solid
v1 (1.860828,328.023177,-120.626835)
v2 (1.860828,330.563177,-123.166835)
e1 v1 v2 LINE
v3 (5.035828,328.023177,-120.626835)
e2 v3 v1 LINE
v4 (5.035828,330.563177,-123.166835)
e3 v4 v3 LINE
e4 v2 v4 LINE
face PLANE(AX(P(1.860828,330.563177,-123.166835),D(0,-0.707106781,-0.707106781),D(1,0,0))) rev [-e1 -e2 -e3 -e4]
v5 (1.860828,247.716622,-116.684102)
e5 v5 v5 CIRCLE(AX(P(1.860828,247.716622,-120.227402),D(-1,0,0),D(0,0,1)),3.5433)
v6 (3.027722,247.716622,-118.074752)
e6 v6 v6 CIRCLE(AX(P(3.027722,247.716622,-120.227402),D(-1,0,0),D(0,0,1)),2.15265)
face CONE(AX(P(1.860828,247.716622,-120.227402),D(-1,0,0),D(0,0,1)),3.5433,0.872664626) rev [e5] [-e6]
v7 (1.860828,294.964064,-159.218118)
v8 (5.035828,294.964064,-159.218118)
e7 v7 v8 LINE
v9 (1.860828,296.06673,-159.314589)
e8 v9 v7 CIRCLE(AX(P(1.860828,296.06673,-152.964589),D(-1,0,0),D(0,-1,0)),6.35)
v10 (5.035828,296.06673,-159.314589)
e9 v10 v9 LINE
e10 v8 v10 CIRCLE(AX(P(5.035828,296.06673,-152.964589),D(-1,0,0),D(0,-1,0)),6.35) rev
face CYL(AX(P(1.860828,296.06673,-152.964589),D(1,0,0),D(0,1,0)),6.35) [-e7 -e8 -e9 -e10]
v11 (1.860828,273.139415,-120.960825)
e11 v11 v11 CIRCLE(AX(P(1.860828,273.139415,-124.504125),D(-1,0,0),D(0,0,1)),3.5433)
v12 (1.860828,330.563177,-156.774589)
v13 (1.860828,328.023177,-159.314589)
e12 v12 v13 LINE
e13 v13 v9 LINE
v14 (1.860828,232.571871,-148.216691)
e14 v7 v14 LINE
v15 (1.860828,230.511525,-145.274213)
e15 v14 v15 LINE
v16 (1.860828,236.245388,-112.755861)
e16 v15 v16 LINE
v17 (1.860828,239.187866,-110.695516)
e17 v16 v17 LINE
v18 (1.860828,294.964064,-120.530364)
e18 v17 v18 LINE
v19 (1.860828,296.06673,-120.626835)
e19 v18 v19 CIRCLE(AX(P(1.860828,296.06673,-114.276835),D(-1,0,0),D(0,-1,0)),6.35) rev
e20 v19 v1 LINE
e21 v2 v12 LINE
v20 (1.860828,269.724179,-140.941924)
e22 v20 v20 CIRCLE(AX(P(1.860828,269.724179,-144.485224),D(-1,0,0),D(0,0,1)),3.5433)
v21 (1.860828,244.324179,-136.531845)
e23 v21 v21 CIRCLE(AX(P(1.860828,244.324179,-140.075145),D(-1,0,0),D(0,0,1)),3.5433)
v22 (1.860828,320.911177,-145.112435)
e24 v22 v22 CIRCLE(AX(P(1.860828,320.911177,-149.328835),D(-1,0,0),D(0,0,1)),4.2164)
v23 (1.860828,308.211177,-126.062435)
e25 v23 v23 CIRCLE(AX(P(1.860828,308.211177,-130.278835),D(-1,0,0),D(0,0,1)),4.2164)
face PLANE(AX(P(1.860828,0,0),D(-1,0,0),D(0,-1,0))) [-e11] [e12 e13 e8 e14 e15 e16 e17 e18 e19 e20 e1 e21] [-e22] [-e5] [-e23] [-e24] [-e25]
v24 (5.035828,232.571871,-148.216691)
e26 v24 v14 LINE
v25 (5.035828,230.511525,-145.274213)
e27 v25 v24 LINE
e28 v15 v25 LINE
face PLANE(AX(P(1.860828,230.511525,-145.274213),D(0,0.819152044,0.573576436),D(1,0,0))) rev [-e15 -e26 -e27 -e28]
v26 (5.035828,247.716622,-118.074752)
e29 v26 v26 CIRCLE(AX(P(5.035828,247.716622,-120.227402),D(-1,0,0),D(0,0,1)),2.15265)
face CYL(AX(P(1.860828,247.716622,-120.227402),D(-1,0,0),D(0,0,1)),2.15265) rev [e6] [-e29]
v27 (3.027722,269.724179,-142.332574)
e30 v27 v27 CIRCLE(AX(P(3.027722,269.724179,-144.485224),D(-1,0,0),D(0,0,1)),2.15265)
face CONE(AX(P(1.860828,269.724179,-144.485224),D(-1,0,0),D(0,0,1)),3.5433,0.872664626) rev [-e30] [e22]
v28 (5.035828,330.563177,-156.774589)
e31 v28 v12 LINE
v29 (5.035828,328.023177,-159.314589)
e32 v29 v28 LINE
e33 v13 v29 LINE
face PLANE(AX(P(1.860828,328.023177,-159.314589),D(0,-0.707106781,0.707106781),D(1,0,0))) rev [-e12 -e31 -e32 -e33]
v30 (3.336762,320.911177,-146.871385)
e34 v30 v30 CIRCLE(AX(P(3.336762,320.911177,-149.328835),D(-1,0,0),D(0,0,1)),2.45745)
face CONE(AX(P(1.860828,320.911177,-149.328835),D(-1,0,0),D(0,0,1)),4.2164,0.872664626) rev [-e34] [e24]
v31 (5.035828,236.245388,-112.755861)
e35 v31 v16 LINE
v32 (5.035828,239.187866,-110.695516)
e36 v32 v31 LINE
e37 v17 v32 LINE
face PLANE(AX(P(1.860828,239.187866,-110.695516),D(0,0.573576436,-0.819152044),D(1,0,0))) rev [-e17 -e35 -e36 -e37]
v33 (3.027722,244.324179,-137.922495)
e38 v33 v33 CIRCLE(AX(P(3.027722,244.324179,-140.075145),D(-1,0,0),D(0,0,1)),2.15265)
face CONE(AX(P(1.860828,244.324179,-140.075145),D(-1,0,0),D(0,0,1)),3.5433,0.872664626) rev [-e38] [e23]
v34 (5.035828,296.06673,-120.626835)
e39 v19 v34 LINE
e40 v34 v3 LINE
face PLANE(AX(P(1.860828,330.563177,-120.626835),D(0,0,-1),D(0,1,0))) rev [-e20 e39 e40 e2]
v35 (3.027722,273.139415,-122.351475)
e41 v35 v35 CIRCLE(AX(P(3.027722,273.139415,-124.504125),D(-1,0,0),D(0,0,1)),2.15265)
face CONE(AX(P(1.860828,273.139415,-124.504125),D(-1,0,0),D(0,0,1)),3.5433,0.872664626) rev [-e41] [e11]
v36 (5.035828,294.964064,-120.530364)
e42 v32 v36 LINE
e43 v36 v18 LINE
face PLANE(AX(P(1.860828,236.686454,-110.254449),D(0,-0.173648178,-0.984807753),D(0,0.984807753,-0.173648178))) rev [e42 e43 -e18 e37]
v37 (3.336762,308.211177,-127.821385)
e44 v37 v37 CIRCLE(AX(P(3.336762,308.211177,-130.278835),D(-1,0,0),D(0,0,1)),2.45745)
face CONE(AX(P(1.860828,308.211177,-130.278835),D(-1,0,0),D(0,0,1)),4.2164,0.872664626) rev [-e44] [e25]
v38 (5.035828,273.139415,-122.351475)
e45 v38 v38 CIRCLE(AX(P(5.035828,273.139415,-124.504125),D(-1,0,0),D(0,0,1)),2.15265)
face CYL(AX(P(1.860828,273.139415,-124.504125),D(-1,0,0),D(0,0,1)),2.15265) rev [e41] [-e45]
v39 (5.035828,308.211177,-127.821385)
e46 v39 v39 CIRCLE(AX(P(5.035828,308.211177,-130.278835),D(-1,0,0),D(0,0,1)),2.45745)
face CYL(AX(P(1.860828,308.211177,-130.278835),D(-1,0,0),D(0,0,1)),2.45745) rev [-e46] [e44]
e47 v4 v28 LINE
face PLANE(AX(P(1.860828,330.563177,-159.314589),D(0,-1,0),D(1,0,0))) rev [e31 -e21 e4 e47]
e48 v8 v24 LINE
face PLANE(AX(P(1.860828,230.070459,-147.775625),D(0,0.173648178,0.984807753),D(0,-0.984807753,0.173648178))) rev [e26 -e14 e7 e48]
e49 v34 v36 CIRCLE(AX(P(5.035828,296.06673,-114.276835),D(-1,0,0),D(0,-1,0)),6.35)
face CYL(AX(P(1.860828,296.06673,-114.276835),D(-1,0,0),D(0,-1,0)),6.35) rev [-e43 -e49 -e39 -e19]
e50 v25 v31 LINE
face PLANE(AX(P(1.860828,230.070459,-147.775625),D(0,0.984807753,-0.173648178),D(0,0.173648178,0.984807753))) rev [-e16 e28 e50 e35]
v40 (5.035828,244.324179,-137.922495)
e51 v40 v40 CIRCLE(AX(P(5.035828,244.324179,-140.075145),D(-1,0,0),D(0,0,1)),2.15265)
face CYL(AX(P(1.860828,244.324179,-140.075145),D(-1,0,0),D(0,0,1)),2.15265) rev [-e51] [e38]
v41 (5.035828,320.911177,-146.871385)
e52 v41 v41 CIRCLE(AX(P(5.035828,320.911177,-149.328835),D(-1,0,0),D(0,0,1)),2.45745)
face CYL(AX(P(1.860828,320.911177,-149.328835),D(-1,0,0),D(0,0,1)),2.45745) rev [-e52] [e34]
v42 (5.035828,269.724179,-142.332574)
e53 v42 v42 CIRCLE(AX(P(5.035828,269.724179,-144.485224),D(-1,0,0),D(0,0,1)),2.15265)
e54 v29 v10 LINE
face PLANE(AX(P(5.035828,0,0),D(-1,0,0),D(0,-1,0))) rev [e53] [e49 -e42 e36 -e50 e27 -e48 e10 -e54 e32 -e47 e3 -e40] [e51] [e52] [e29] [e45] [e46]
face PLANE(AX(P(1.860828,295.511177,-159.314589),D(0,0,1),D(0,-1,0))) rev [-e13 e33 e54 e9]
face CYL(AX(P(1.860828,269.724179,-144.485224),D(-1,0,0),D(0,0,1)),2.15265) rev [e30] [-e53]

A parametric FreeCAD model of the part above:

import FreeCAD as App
import Part
import Sketcher

V = App.Vector
Q = App.Units.Quantity


def edges_at(feature, points):
    """Names of the edges that pass closest to the given points."""
    edges = feature.Shape.Edges
    near = lambda p: min(range(len(edges)), key=lambda i: edges[i].distToShape(Part.Vertex(*p))[0])
    return sorted({f"Edge{near(p) + 1}" for p in points})


def add_polygon(sketch, points):
    """Adds a closed chain of lines whose ends are joined by coincident constraints."""
    first, n = sketch.GeometryCount, len(points)
    for a, b in zip(points, points[1:] + points[:1]):
        sketch.addGeometry(Part.LineSegment(App.Vector(*a, 0), App.Vector(*b, 0)), False)
    for i in range(n):
        sketch.addConstraint(Sketcher.Constraint("Coincident", first + i, 2, first + (i + 1) % n, 1))

doc = App.newDocument("Part")
body = doc.addObject("PartDesign::Body", "Body")

sketch1 = body.newObject("Sketcher::SketchObject", "Sketch")
sketch1.AttachmentSupport = (doc.getObject("YZ_Plane"), [""])
sketch1.MapMode = "FlatFace"
sketch1.AttachmentOffset = App.Placement(V(0, 0, 5.035828), App.Rotation())
add_polygon(sketch1, [(296, -159), (230, -148), (237, -110), (296, -121), (331, -121), (331, -159)])
sketch1.addConstraint([
    Sketcher.Constraint("Horizontal", 3),
    Sketcher.Constraint("Vertical", 4),
    Sketcher.Constraint("Horizontal", 5),
    Sketcher.Constraint("Perpendicular", 0, 1),
    Sketcher.Constraint("Perpendicular", 1, 2),
    Sketcher.Constraint("Vertical", 2, 2, 5, 2),
    Sketcher.Constraint("Angle", 0, Q("170 deg")),
    Sketcher.Constraint("Distance", 1, Q("1.5 in")),
    Sketcher.Constraint("DistanceX", 3, 1, 3, 2, Q("1.38 in")),
    Sketcher.Constraint("Distance", 2, 59.732189),
    Sketcher.Constraint("DistanceX", -1, 1, 0, 2, 230.070459),
    Sketcher.Constraint("DistanceY", 1, 2, -1, 1, 110.254449),
])
pad1 = body.newObject("PartDesign::Pad", "Pad")
pad1.Profile = sketch1
pad1.Length = Q("0.125 in")
pad1.Reversed = True
doc.recompute()

fillet = body.newObject("PartDesign::Fillet", "Fillet")
fillet.Base = (pad1, edges_at(pad1, [(3.448, 295.511, -159.315), (3.448, 295.511, -120.627)]))
fillet.Radius = Q("0.25 in")

sketch2 = body.newObject("Sketcher::SketchObject", "Sketch001")
sketch2.AttachmentSupport = (doc.getObject("YZ_Plane"), [""])
sketch2.MapMode = "FlatFace"
sketch2.AttachmentOffset = App.Placement(V(0, 0, 1.860828), App.Rotation())
sketch2.addGeometry([
    Part.Circle(V(273.1, -124.5, 0), V(0, 0, 1), 2.2),
    Part.Circle(V(269.7, -144.5, 0), V(0, 0, 1), 2.2),
    Part.Circle(V(244.3, -140.1, 0), V(0, 0, 1), 2.2),
    Part.Circle(V(247.7, -120.2, 0), V(0, 0, 1), 2.2),
], False)
sketch2.addConstraint([
    Sketcher.Constraint("Equal", 0, 1),
    Sketcher.Constraint("Equal", 1, 2),
    Sketcher.Constraint("Equal", 2, 3),
    Sketcher.Constraint("DistanceX", 2, 3, 1, 3, Q("1 in")),
    Sketcher.Constraint("Diameter", 0, Q("0.1695 in")),
    Sketcher.Constraint("DistanceY", 1, 3, 0, 3, 19.981099),
    Sketcher.Constraint("DistanceX", -1, 1, 1, 3, 269.724179),
    Sketcher.Constraint("DistanceX", -1, 1, 3, 3, 247.716622),
    Sketcher.Constraint("DistanceY", 1, 3, 2, 3, 4.410079),
    Sketcher.Constraint("DistanceY", 1, 3, 3, 3, 24.257822),
    Sketcher.Constraint("DistanceX", -1, 1, 0, 3, 273.139415),
    Sketcher.Constraint("DistanceY", 0, 3, -1, 1, 124.504125),
])
doc.recompute()
hole = body.newObject("PartDesign::Hole", "Hole")
hole.Profile = sketch2
hole.ThreadType = "None"
hole.Diameter = Q("0.1695 in")
hole.DepthType = "ThroughAll"
hole.HoleCutType = "Countersink"
hole.HoleCutDiameter = Q("0.279 in")
hole.HoleCutCountersinkAngle = 100
hole.Reversed = True

sketch3 = body.newObject("Sketcher::SketchObject", "Sketch002")
sketch3.AttachmentSupport = (doc.getObject("XZ_Plane"), [""])
sketch3.MapMode = "FlatFace"
sketch3.AttachmentOffset = App.Placement(V(0, 0, -320.911177), App.Rotation())
add_polygon(sketch3, [(5, -149.3), (1.9, -149.3), (1.9, -145.1), (3.3, -146.9), (5, -146.9)])
sketch3.addGeometry(Part.LineSegment(V(1.9, -149.3, 0), V(5, -149.3, 0)), True)
sketch3.addConstraint([
    Sketcher.Constraint("Horizontal", 0),
    Sketcher.Constraint("Vertical", 1),
    Sketcher.Constraint("Horizontal", 3),
    Sketcher.Constraint("Vertical", 4),
    Sketcher.Constraint("Horizontal", 5),
    Sketcher.Constraint("Coincident", 5, 1, 0, 2),
    Sketcher.Constraint("Vertical", 3, 2, 5, 2),
    Sketcher.Constraint("Angle", 2, Q("-50 deg")),
    Sketcher.Constraint("DistanceX", 0, 2, 0, 1, Q("0.125 in")),
    Sketcher.Constraint("DistanceY", 1, 1, 1, 2, Q("0.166 in")),
    Sketcher.Constraint("DistanceY", 4, 2, 4, 1, 2.45745),
    Sketcher.Constraint("DistanceX", -1, 1, 0, 2, 1.860828),
    Sketcher.Constraint("DistanceY", 0, 2, -1, 1, 149.328835),
])
groove = body.newObject("PartDesign::Groove", "Groove")
groove.Profile = sketch3
groove.ReferenceAxis = (sketch3, ["Axis0"])
groove.Angle = 360
doc.recompute()

datumline = body.newObject("PartDesign::Line", "DatumLine")
datumline.Placement = App.Placement(V(0, 0, 0), App.Rotation(V(0, 0, 1), V(0, -0.554700196, 0.832050294)))
linearpattern = body.newObject("PartDesign::LinearPattern", "LinearPattern")
linearpattern.Originals = [groove]
linearpattern.Direction = (datumline, [""])
linearpattern.Mode = "offset"
linearpattern.Offset = 22.895251
linearpattern.Occurrences = 2
body.Tip = linearpattern
doc.recompute()

chamfer = body.newObject("PartDesign::Chamfer", "Chamfer")
chamfer.Base = (linearpattern, edges_at(linearpattern, [
    (3.448, 230.07, -147.776),
    (3.448, 330.563, -159.315),
    (3.448, 330.563, -120.627),
    (3.448, 236.686, -110.254),
]))
chamfer.Size = Q("0.1 in")

doc.recompute()
